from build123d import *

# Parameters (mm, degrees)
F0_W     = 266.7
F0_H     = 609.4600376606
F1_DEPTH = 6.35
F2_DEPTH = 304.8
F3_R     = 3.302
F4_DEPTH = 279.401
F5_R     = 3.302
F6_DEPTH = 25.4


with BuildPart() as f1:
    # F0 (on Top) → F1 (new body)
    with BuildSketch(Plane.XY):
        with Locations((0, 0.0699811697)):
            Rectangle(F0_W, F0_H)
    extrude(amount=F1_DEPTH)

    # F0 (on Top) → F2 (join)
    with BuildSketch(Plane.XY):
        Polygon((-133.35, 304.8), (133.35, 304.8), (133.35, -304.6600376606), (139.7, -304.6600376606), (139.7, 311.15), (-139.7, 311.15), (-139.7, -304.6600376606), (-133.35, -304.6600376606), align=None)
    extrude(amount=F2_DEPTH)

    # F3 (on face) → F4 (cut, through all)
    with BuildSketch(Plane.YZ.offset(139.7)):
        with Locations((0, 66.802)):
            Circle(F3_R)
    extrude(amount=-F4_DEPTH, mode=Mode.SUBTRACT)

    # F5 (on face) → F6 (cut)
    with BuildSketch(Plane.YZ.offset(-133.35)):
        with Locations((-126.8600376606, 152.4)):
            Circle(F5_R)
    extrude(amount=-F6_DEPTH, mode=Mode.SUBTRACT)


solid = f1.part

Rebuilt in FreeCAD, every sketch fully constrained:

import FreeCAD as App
import Part
import Sketcher

V = App.Vector
Q = App.Units.Quantity

doc = App.newDocument("Part")
body = doc.addObject("PartDesign::Body", "Body")

sketch1 = body.newObject("Sketcher::SketchObject", "Sketch")
sketch1.AttachmentSupport = (doc.getObject("XY_Plane"), [""])
sketch1.MapMode = "FlatFace"
sketch1.addGeometry([
    Part.LineSegment(V(-133, 305, 0), V(-133, -305, 0)),
    Part.LineSegment(V(-133, -305, 0), V(133, -305, 0)),
    Part.LineSegment(V(133, -305, 0), V(133, 305, 0)),
    Part.LineSegment(V(133, 305, 0), V(-133, 305, 0)),
], False)
sketch1.addConstraint([
    Sketcher.Constraint("Coincident", 0, 2, 1, 1),
    Sketcher.Constraint("Coincident", 1, 2, 2, 1),
    Sketcher.Constraint("Coincident", 2, 2, 3, 1),
    Sketcher.Constraint("Coincident", 3, 2, 0, 1),
    Sketcher.Constraint("Vertical", 0),
    Sketcher.Constraint("Horizontal", 1),
    Sketcher.Constraint("Vertical", 2),
    Sketcher.Constraint("Horizontal", 3),
    Sketcher.Constraint("DistanceX", 1, 1, 1, 2, Q("10.5 in")),
    Sketcher.Constraint("DistanceY", -1, 1, 2, 2, Q("12 in")),
    Sketcher.Constraint("DistanceX", 0, 2, -1, 1, Q("5.25 in")),
    Sketcher.Constraint("DistanceY", 0, 2, 0, 1, 609.460038),
])
pad1 = body.newObject("PartDesign::Pad", "Pad")
pad1.Profile = sketch1
pad1.Length = Q("0.25 in")

sketch2 = body.newObject("Sketcher::SketchObject", "Sketch001")
sketch2.AttachmentSupport = (doc.getObject("XY_Plane"), [""])
sketch2.MapMode = "FlatFace"
sketch2.addGeometry([
    Part.LineSegment(V(-133, 305, 0), V(133, 305, 0)),
    Part.LineSegment(V(133, 305, 0), V(133, -305, 0)),
    Part.LineSegment(V(133, -305, 0), V(140, -305, 0)),
    Part.LineSegment(V(140, -305, 0), V(140, 311, 0)),
    Part.LineSegment(V(140, 311, 0), V(-140, 311, 0)),
    Part.LineSegment(V(-140, 311, 0), V(-140, -305, 0)),
    Part.LineSegment(V(-140, -305, 0), V(-133, -305, 0)),
    Part.LineSegment(V(-133, -305, 0), V(-133, 305, 0)),
], False)
sketch2.addConstraint([
    Sketcher.Constraint("Coincident", 0, 2, 1, 1),
    Sketcher.Constraint("Coincident", 1, 2, 2, 1),
    Sketcher.Constraint("Coincident", 2, 2, 3, 1),
    Sketcher.Constraint("Coincident", 3, 2, 4, 1),
    Sketcher.Constraint("Coincident", 4, 2, 5, 1),
    Sketcher.Constraint("Coincident", 5, 2, 6, 1),
    Sketcher.Constraint("Coincident", 6, 2, 7, 1),
    Sketcher.Constraint("Coincident", 7, 2, 0, 1),
    Sketcher.Constraint("Horizontal", 0),
    Sketcher.Constraint("Vertical", 1),
    Sketcher.Constraint("Horizontal", 2),
    Sketcher.Constraint("Vertical", 3),
    Sketcher.Constraint("Horizontal", 4),
    Sketcher.Constraint("Vertical", 5),
    Sketcher.Constraint("Horizontal", 6),
    Sketcher.Constraint("Vertical", 7),
    Sketcher.Constraint("Symmetric", 2, 2, 5, 2, -2),
    Sketcher.Constraint("Equal", 2, 6),
    Sketcher.Constraint("DistanceX", 4, 2, 4, 1, Q("11 in")),
    Sketcher.Constraint("DistanceX", 0, 1, 0, 2, Q("10.5 in")),
    Sketcher.Constraint("DistanceY", -1, 1, 0, 2, Q("12 in")),
    Sketcher.Constraint("DistanceY", -1, 1, 3, 2, Q("12.25 in")),
    Sketcher.Constraint("DistanceY", 1, 2, 1, 1, 609.460038),
])
pad2 = body.newObject("PartDesign::Pad", "Pad001")
pad2.Profile = sketch2
pad2.Length = Q("12 in")

sketch3 = body.newObject("Sketcher::SketchObject", "Sketch002")
sketch3.AttachmentSupport = (doc.getObject("YZ_Plane"), [""])
sketch3.MapMode = "FlatFace"
sketch3.AttachmentOffset = App.Placement(V(0, 0, 5.5 * 25.4), App.Rotation())
sketch3.addGeometry(Part.Circle(V(0, 66.8, 0), V(0, 0, 1), 3.3), False)
sketch3.addConstraint([
    Sketcher.Constraint("PointOnObject", 0, 3, -2),
    Sketcher.Constraint("Diameter", 0, Q("0.26 in")),
    Sketcher.Constraint("DistanceY", -1, 1, 0, 3, Q("2.63 in")),
])
pocket1 = body.newObject("PartDesign::Pocket", "Pocket")
pocket1.Profile = sketch3
pocket1.Type = "ThroughAll"

sketch4 = body.newObject("Sketcher::SketchObject", "Sketch003")
sketch4.AttachmentSupport = (doc.getObject("YZ_Plane"), [""])
sketch4.MapMode = "FlatFace"
sketch4.AttachmentOffset = App.Placement(V(0, 0, -5.25 * 25.4), App.Rotation())
sketch4.addGeometry(Part.Circle(V(-126.9, 152.4, 0), V(0, 0, 1), 3.3), False)
sketch4.addConstraint([
    Sketcher.Constraint("Diameter", 0, Q("0.26 in")),
    Sketcher.Constraint("DistanceY", -1, 1, 0, 3, Q("6 in")),
    Sketcher.Constraint("DistanceX", 0, 3, -1, 1, 126.860038),
])
pocket2 = body.newObject("PartDesign::Pocket", "Pocket001")
pocket2.Profile = sketch4
pocket2.Length = Q("1 in")

doc.recompute()
